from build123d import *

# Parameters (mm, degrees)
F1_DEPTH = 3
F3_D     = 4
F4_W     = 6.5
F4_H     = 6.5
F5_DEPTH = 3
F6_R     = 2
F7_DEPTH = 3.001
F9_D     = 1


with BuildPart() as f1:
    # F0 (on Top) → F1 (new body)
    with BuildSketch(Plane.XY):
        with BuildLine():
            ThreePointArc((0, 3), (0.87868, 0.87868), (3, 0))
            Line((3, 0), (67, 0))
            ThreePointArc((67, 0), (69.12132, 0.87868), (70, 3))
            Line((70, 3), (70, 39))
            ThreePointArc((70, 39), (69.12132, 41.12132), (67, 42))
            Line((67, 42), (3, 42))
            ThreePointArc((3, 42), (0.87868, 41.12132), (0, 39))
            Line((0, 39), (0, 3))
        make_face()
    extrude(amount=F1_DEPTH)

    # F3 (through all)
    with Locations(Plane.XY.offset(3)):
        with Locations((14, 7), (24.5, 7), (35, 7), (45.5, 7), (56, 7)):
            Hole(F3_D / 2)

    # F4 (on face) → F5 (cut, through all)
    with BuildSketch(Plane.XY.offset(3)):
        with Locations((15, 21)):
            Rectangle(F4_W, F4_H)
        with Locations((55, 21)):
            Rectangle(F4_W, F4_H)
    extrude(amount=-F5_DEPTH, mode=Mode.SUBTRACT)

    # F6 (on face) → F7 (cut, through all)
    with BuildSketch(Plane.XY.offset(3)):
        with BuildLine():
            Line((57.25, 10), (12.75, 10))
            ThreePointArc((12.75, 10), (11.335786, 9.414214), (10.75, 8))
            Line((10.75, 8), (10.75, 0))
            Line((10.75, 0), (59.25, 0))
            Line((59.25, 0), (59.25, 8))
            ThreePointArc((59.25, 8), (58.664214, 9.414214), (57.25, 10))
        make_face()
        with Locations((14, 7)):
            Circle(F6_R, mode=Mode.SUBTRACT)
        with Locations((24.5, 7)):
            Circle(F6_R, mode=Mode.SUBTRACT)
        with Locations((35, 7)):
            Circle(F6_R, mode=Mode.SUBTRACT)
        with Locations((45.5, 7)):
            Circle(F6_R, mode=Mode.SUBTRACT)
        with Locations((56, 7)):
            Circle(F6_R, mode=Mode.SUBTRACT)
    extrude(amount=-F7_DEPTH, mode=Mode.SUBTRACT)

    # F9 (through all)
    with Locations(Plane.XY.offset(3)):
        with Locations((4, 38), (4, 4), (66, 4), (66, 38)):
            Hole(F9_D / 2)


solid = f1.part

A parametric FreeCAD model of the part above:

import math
import FreeCAD as App
import Part
import Sketcher

doc = App.newDocument("Part")
body = doc.addObject("PartDesign::Body", "Body")

# Sketch on XY plane
sketch1 = body.newObject("Sketcher::SketchObject", "Sketch")
sketch1.AttachmentSupport = (doc.getObject("XY_Plane"), [""])
sketch1.MapMode = "FlatFace"
sketch1.addGeometry([
    Part.ArcOfCircle(Part.Circle(App.Vector(3, 3, 0), App.Vector(0, 0, 1), 3), math.radians(-180), math.radians(-90)),  # 0
    Part.LineSegment(App.Vector(3, 0, 0), App.Vector(67, 0, 0)),  # 1
    Part.ArcOfCircle(Part.Circle(App.Vector(67, 3, 0), App.Vector(0, 0, 1), 3), math.radians(-90), math.radians(0)),  # 2
    Part.LineSegment(App.Vector(70, 3, 0), App.Vector(70, 39, 0)),  # 3
    Part.ArcOfCircle(Part.Circle(App.Vector(67, 39, 0), App.Vector(0, 0, 1), 3), math.radians(0), math.radians(90)),  # 4
    Part.LineSegment(App.Vector(67, 42, 0), App.Vector(3, 42, 0)),  # 5
    Part.ArcOfCircle(Part.Circle(App.Vector(3, 39, 0), App.Vector(0, 0, 1), 3), math.radians(90), math.radians(180)),  # 6
    Part.LineSegment(App.Vector(0, 39, 0), App.Vector(0, 3, 0)),  # 7
], False)
sketch1.addConstraint([
    Sketcher.Constraint("Tangent", 0, 2, 1, 1),
    Sketcher.Constraint("Tangent", 1, 2, 2, 1),
    Sketcher.Constraint("Tangent", 2, 2, 3, 1),
    Sketcher.Constraint("Tangent", 3, 2, 4, 1),
    Sketcher.Constraint("Tangent", 4, 2, 5, 1),
    Sketcher.Constraint("Tangent", 5, 2, 6, 1),
    Sketcher.Constraint("Tangent", 6, 2, 7, 1),
    Sketcher.Constraint("Tangent", 7, 2, 0, 1),
    Sketcher.Constraint("Horizontal", 1),
    Sketcher.Constraint("Vertical", 3),
    Sketcher.Constraint("Horizontal", 5),
    Sketcher.Constraint("Vertical", 7),
    Sketcher.Constraint("Equal", 0, 2),
    Sketcher.Constraint("Equal", 2, 4),
    Sketcher.Constraint("Equal", 4, 6),
    Sketcher.Constraint("PointOnObject", 0, 2, -1),
    Sketcher.Constraint("PointOnObject", 6, 2, -2),
    Sketcher.Constraint("Radius", 0, 3.000001),
    Sketcher.Constraint("DistanceX", 1, 1, 1, 2, 64.0),
    Sketcher.Constraint("DistanceY", 3, 1, 3, 2, 36.0),
])
pad1 = body.newObject("PartDesign::Pad", "Pad")
pad1.Profile = sketch1
pad1.Length = 3

# Sketch on XY plane
sketch2 = body.newObject("Sketcher::SketchObject", "Sketch001")
sketch2.AttachmentSupport = (doc.getObject("XY_Plane"), [""])
sketch2.MapMode = "FlatFace"
sketch2.AttachmentOffset = App.Placement(App.Vector(0, 0, 3), App.Rotation())
sketch2.addGeometry([
    Part.Circle(App.Vector(14, 7, 0), App.Vector(0, 0, 1), 2),  # 0
    Part.Circle(App.Vector(24.5, 7, 0), App.Vector(0, 0, 1), 2),  # 1
    Part.Circle(App.Vector(35, 7, 0), App.Vector(0, 0, 1), 2),  # 2
    Part.Circle(App.Vector(45.5, 7, 0), App.Vector(0, 0, 1), 2),  # 3
    Part.Circle(App.Vector(56, 7, 0), App.Vector(0, 0, 1), 2),  # 4
], False)
sketch2.addConstraint([
    Sketcher.Constraint("Equal", 0, 1),
    Sketcher.Constraint("Equal", 1, 2),
    Sketcher.Constraint("Equal", 2, 3),
    Sketcher.Constraint("Equal", 3, 4),
    Sketcher.Constraint("Horizontal", 0, 3, 1, 3),
    Sketcher.Constraint("Horizontal", 1, 3, 2, 3),
    Sketcher.Constraint("Horizontal", 2, 3, 3, 3),
    Sketcher.Constraint("Horizontal", 3, 3, 4, 3),
    Sketcher.Constraint("Diameter", 0, 4.0),
    Sketcher.Constraint("DistanceX", -1, 1, 0, 3, 14.0),
    Sketcher.Constraint("DistanceY", -1, 1, 0, 3, 7.0),
    Sketcher.Constraint("DistanceX", -1, 1, 2, 3, 35.0),
    Sketcher.Constraint("DistanceX", -1, 1, 4, 3, 56.0),
    Sketcher.Constraint("DistanceX", 1, 3, 3, 3, 21.0),
    Sketcher.Constraint("DistanceX", -1, 1, 1, 3, 24.5),
])
doc.recompute()
hole = body.newObject("PartDesign::Hole", "Hole")
hole.Profile = sketch2
hole.ThreadType = "None"
hole.Diameter = 4
hole.DepthType = "ThroughAll"

# Sketch on XY plane
sketch3 = body.newObject("Sketcher::SketchObject", "Sketch002")
sketch3.AttachmentSupport = (doc.getObject("XY_Plane"), [""])
sketch3.MapMode = "FlatFace"
sketch3.AttachmentOffset = App.Placement(App.Vector(0, 0, 3), App.Rotation())
sketch3.addGeometry([
    Part.LineSegment(App.Vector(12, 24, 0), App.Vector(12, 18, 0)),  # 0
    Part.LineSegment(App.Vector(12, 18, 0), App.Vector(18, 18, 0)),  # 1
    Part.LineSegment(App.Vector(18, 18, 0), App.Vector(18, 24, 0)),  # 2
    Part.LineSegment(App.Vector(18, 24, 0), App.Vector(12, 24, 0)),  # 3
    Part.LineSegment(App.Vector(52, 24, 0), App.Vector(52, 18, 0)),  # 4
    Part.LineSegment(App.Vector(52, 18, 0), App.Vector(58, 18, 0)),  # 5
    Part.LineSegment(App.Vector(58, 18, 0), App.Vector(58, 24, 0)),  # 6
    Part.LineSegment(App.Vector(58, 24, 0), App.Vector(52, 24, 0)),  # 7
], False)
sketch3.addConstraint([
    Sketcher.Constraint("Coincident", 0, 2, 1, 1),
    Sketcher.Constraint("Coincident", 1, 2, 2, 1),
    Sketcher.Constraint("Coincident", 2, 2, 3, 1),
    Sketcher.Constraint("Coincident", 3, 2, 0, 1),
    Sketcher.Constraint("Coincident", 4, 2, 5, 1),
    Sketcher.Constraint("Coincident", 5, 2, 6, 1),
    Sketcher.Constraint("Coincident", 6, 2, 7, 1),
    Sketcher.Constraint("Coincident", 7, 2, 4, 1),
    Sketcher.Constraint("Vertical", 0),
    Sketcher.Constraint("Horizontal", 1),
    Sketcher.Constraint("Vertical", 2),
    Sketcher.Constraint("Horizontal", 3),
    Sketcher.Constraint("Vertical", 4),
    Sketcher.Constraint("Horizontal", 5),
    Sketcher.Constraint("Vertical", 6),
    Sketcher.Constraint("Horizontal", 7),
    Sketcher.Constraint("Horizontal", 1, 2, 4, 2),
    Sketcher.Constraint("Horizontal", 3, 2, 6, 2),
    Sketcher.Constraint("Equal", 3, 5),
    Sketcher.Constraint("Equal", 7, 0),
    Sketcher.Constraint("DistanceX", 1, 1, 1, 2, 6.5),
    Sketcher.Constraint("DistanceX", 0, 2, 4, 2, 40.0),
    Sketcher.Constraint("DistanceX", -1, 1, 0, 2, 11.75),
    Sketcher.Constraint("DistanceY", -1, 1, 0, 2, 17.75),
])
pocket1 = body.newObject("PartDesign::Pocket", "Pocket")
pocket1.Profile = sketch3
pocket1.Type = "ThroughAll"

# Sketch on XY plane
sketch4 = body.newObject("Sketcher::SketchObject", "Sketch003")
sketch4.AttachmentSupport = (doc.getObject("XY_Plane"), [""])
sketch4.MapMode = "FlatFace"
sketch4.AttachmentOffset = App.Placement(App.Vector(0, 0, 3), App.Rotation())
sketch4.addGeometry([
    Part.LineSegment(App.Vector(57.2, 10, 0), App.Vector(12.8, 10, 0)),  # 0
    Part.ArcOfCircle(Part.Circle(App.Vector(12.7, 8, 0), App.Vector(0, 0, 1), 2), math.radians(90), math.radians(180)),  # 1
    Part.LineSegment(App.Vector(10.8, 8, 0), App.Vector(10.8, 0, 0)),  # 2
    Part.LineSegment(App.Vector(10.8, 0, 0), App.Vector(59.2, 0, 0)),  # 3
    Part.LineSegment(App.Vector(59.2, 0, 0), App.Vector(59.2, 8, 0)),  # 4
    Part.ArcOfCircle(Part.Circle(App.Vector(57.3, 8, 0), App.Vector(0, 0, 1), 2), math.radians(0), math.radians(90)),  # 5
    Part.Circle(App.Vector(14, 7, 0), App.Vector(0, 0, 1), 2),  # 6
    Part.Circle(App.Vector(24.5, 7, 0), App.Vector(0, 0, 1), 2),  # 7
    Part.Circle(App.Vector(35, 7, 0), App.Vector(0, 0, 1), 2),  # 8
    Part.Circle(App.Vector(45.5, 7, 0), App.Vector(0, 0, 1), 2),  # 9
    Part.Circle(App.Vector(56, 7, 0), App.Vector(0, 0, 1), 2),  # 10
], False)
sketch4.addConstraint([
    Sketcher.Constraint("Tangent", 0, 2, 1, 1),
    Sketcher.Constraint("Tangent", 1, 2, 2, 1),
    Sketcher.Constraint("Coincident", 2, 2, 3, 1),
    Sketcher.Constraint("Coincident", 3, 2, 4, 1),
    Sketcher.Constraint("Tangent", 4, 2, 5, 1),
    Sketcher.Constraint("Tangent", 5, 2, 0, 1),
    Sketcher.Constraint("Horizontal", 0),
    Sketcher.Constraint("Vertical", 2),
    Sketcher.Constraint("Horizontal", 3),
    Sketcher.Constraint("Vertical", 4),
    Sketcher.Constraint("Equal", 1, 5),
    Sketcher.Constraint("Equal", 5, 6),
    Sketcher.Constraint("Equal", 6, 7),
    Sketcher.Constraint("Equal", 7, 8),
    Sketcher.Constraint("Equal", 8, 9),
    Sketcher.Constraint("Equal", 9, 10),
    Sketcher.Constraint("PointOnObject", 2, 2, -1),
    Sketcher.Constraint("Horizontal", 6, 3, 7, 3),
    Sketcher.Constraint("Horizontal", 7, 3, 8, 3),
    Sketcher.Constraint("Horizontal", 8, 3, 9, 3),
    Sketcher.Constraint("Horizontal", 9, 3, 10, 3),
    Sketcher.Constraint("Diameter", 6, 4.0),
    Sketcher.Constraint("DistanceY", 2, 2, 2, 1, 8.0),
    Sketcher.Constraint("DistanceX", 0, 2, 0, 1, 44.5),
    Sketcher.Constraint("DistanceX", -1, 1, 6, 3, 14.0),
    Sketcher.Constraint("DistanceY", -1, 1, 6, 3, 7.0),
    Sketcher.Constraint("DistanceX", -1, 1, 8, 3, 35.0),
    Sketcher.Constraint("DistanceX", -1, 1, 10, 3, 56.0),
    Sketcher.Constraint("DistanceX", 7, 3, 9, 3, 21.0),
    Sketcher.Constraint("DistanceX", -1, 1, 7, 3, 24.5),
    Sketcher.Constraint("DistanceX", -1, 1, 1, 3, 12.749999),
])
pocket2 = body.newObject("PartDesign::Pocket", "Pocket001")
pocket2.Profile = sketch4
pocket2.Type = "ThroughAll"

# Sketch on XY plane
sketch5 = body.newObject("Sketcher::SketchObject", "Sketch004")
sketch5.AttachmentSupport = (doc.getObject("XY_Plane"), [""])
sketch5.MapMode = "FlatFace"
sketch5.AttachmentOffset = App.Placement(App.Vector(0, 0, 3), App.Rotation())
sketch5.addGeometry([
    Part.Circle(App.Vector(4, 38, 0), App.Vector(0, 0, 1), 0.5),
    Part.Circle(App.Vector(4, 4, 0), App.Vector(0, 0, 1), 0.5),
    Part.Circle(App.Vector(66, 4, 0), App.Vector(0, 0, 1), 0.5),
    Part.Circle(App.Vector(66, 38, 0), App.Vector(0, 0, 1), 0.5),
], False)
sketch5.addConstraint([
    Sketcher.Constraint("Equal", 0, 1),
    Sketcher.Constraint("Equal", 1, 2),
    Sketcher.Constraint("Equal", 2, 3),
    Sketcher.Constraint("Horizontal", 1, 3, 2, 3),
    Sketcher.Constraint("Horizontal", 0, 3, 3, 3),
    Sketcher.Constraint("Vertical", 0, 3, 1, 3),
    Sketcher.Constraint("Vertical", 2, 3, 3, 3),
    Sketcher.Constraint("Diameter", 0, 1.0),
    Sketcher.Constraint("DistanceX", -1, 1, 0, 3, 4.0),
    Sketcher.Constraint("DistanceY", -1, 1, 0, 3, 38.0),
    Sketcher.Constraint("DistanceY", -1, 1, 1, 3, 4.0),
    Sketcher.Constraint("DistanceX", -1, 1, 2, 3, 66.0),
])
doc.recompute()
hole2 = body.newObject("PartDesign::Hole", "Hole001")
hole2.Profile = sketch5
hole2.ThreadType = "None"
hole2.Diameter = 1
hole2.DepthType = "ThroughAll"

doc.recompute()
